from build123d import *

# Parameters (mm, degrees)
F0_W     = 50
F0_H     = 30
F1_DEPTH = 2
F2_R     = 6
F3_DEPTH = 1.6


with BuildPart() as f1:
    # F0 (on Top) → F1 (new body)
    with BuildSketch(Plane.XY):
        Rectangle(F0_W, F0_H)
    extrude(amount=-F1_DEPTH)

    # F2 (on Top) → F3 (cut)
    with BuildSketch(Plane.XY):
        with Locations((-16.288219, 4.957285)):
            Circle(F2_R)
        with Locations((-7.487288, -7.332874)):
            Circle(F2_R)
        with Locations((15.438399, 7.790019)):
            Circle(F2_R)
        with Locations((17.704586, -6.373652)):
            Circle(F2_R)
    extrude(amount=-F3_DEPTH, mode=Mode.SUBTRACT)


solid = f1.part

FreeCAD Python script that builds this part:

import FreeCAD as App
import Part
import Sketcher
Q = App.Units.Quantity


def add_polygon(sketch, points):
    """Adds a closed chain of lines whose ends are joined by coincident constraints."""
    first, n = sketch.GeometryCount, len(points)
    for a, b in zip(points, points[1:] + points[:1]):
        sketch.addGeometry(Part.LineSegment(App.Vector(*a, 0), App.Vector(*b, 0)), False)
    for i in range(n):
        sketch.addConstraint(Sketcher.Constraint("Coincident", first + i, 2, first + (i + 1) % n, 1))

doc = App.newDocument("Part")
body = doc.addObject("PartDesign::Body", "Body")

# Sketch on XY plane
sketch1 = body.newObject("Sketcher::SketchObject", "Sketch")
sketch1.AttachmentSupport = (doc.getObject("XY_Plane"), [""])
sketch1.MapMode = "FlatFace"
add_polygon(sketch1, [(-25, 15), (-25, -15), (25, -15), (25, 15)])  # lines 0-3
sketch1.addConstraint([
    Sketcher.Constraint("Vertical", 0),
    Sketcher.Constraint("Horizontal", 1),
    Sketcher.Constraint("Vertical", 2),
    Sketcher.Constraint("Horizontal", 3),
    Sketcher.Constraint("Symmetric", 0, 2, 2, 2, -1, 1),
    Sketcher.Constraint("DistanceX", 1, 1, 1, 2, Q("50 mm")),
    Sketcher.Constraint("DistanceY", 0, 2, 0, 1, Q("30 mm")),
])
pad1 = body.newObject("PartDesign::Pad", "Pad")
pad1.Profile = sketch1
pad1.Length = 2
pad1.Reversed = True

# Sketch on XY plane
sketch2 = body.newObject("Sketcher::SketchObject", "Sketch001")
sketch2.AttachmentSupport = (doc.getObject("XY_Plane"), [""])
sketch2.MapMode = "FlatFace"
sketch2.addGeometry([
    Part.Circle(App.Vector(-16, 5, 0), App.Vector(0, 0, 1), 6),
    Part.Circle(App.Vector(-7, -7, 0), App.Vector(0, 0, 1), 6),
    Part.Circle(App.Vector(15, 8, 0), App.Vector(0, 0, 1), 6),
    Part.Circle(App.Vector(18, -6, 0), App.Vector(0, 0, 1), 6),
], False)
sketch2.addConstraint([
    Sketcher.Constraint("Equal", 0, 1),
    Sketcher.Constraint("Equal", 1, 2),
    Sketcher.Constraint("Equal", 2, 3),
    Sketcher.Constraint("Diameter", 0, Q("12 mm")),
    Sketcher.Constraint("DistanceX", -1, 1, 2, 3, Q("15.438399 mm")),
    Sketcher.Constraint("DistanceX", 0, 3, -1, 1, Q("16.288219 mm")),
    Sketcher.Constraint("DistanceX", 1, 3, -1, 1, Q("7.487288 mm")),
    Sketcher.Constraint("DistanceY", -1, 1, 2, 3, Q("7.790019 mm")),
    Sketcher.Constraint("DistanceY", 1, 3, 0, 3, Q("12.290159 mm")),
    Sketcher.Constraint("DistanceY", 3, 3, 2, 3, Q("14.163671 mm")),
    Sketcher.Constraint("DistanceY", -1, 1, 0, 3, Q("4.957285 mm")),
    Sketcher.Constraint("DistanceX", -1, 1, 3, 3, Q("17.704586 mm")),
])
pocket1 = body.newObject("PartDesign::Pocket", "Pocket")
pocket1.Profile = sketch2
pocket1.Length = 1.6

doc.recompute()
